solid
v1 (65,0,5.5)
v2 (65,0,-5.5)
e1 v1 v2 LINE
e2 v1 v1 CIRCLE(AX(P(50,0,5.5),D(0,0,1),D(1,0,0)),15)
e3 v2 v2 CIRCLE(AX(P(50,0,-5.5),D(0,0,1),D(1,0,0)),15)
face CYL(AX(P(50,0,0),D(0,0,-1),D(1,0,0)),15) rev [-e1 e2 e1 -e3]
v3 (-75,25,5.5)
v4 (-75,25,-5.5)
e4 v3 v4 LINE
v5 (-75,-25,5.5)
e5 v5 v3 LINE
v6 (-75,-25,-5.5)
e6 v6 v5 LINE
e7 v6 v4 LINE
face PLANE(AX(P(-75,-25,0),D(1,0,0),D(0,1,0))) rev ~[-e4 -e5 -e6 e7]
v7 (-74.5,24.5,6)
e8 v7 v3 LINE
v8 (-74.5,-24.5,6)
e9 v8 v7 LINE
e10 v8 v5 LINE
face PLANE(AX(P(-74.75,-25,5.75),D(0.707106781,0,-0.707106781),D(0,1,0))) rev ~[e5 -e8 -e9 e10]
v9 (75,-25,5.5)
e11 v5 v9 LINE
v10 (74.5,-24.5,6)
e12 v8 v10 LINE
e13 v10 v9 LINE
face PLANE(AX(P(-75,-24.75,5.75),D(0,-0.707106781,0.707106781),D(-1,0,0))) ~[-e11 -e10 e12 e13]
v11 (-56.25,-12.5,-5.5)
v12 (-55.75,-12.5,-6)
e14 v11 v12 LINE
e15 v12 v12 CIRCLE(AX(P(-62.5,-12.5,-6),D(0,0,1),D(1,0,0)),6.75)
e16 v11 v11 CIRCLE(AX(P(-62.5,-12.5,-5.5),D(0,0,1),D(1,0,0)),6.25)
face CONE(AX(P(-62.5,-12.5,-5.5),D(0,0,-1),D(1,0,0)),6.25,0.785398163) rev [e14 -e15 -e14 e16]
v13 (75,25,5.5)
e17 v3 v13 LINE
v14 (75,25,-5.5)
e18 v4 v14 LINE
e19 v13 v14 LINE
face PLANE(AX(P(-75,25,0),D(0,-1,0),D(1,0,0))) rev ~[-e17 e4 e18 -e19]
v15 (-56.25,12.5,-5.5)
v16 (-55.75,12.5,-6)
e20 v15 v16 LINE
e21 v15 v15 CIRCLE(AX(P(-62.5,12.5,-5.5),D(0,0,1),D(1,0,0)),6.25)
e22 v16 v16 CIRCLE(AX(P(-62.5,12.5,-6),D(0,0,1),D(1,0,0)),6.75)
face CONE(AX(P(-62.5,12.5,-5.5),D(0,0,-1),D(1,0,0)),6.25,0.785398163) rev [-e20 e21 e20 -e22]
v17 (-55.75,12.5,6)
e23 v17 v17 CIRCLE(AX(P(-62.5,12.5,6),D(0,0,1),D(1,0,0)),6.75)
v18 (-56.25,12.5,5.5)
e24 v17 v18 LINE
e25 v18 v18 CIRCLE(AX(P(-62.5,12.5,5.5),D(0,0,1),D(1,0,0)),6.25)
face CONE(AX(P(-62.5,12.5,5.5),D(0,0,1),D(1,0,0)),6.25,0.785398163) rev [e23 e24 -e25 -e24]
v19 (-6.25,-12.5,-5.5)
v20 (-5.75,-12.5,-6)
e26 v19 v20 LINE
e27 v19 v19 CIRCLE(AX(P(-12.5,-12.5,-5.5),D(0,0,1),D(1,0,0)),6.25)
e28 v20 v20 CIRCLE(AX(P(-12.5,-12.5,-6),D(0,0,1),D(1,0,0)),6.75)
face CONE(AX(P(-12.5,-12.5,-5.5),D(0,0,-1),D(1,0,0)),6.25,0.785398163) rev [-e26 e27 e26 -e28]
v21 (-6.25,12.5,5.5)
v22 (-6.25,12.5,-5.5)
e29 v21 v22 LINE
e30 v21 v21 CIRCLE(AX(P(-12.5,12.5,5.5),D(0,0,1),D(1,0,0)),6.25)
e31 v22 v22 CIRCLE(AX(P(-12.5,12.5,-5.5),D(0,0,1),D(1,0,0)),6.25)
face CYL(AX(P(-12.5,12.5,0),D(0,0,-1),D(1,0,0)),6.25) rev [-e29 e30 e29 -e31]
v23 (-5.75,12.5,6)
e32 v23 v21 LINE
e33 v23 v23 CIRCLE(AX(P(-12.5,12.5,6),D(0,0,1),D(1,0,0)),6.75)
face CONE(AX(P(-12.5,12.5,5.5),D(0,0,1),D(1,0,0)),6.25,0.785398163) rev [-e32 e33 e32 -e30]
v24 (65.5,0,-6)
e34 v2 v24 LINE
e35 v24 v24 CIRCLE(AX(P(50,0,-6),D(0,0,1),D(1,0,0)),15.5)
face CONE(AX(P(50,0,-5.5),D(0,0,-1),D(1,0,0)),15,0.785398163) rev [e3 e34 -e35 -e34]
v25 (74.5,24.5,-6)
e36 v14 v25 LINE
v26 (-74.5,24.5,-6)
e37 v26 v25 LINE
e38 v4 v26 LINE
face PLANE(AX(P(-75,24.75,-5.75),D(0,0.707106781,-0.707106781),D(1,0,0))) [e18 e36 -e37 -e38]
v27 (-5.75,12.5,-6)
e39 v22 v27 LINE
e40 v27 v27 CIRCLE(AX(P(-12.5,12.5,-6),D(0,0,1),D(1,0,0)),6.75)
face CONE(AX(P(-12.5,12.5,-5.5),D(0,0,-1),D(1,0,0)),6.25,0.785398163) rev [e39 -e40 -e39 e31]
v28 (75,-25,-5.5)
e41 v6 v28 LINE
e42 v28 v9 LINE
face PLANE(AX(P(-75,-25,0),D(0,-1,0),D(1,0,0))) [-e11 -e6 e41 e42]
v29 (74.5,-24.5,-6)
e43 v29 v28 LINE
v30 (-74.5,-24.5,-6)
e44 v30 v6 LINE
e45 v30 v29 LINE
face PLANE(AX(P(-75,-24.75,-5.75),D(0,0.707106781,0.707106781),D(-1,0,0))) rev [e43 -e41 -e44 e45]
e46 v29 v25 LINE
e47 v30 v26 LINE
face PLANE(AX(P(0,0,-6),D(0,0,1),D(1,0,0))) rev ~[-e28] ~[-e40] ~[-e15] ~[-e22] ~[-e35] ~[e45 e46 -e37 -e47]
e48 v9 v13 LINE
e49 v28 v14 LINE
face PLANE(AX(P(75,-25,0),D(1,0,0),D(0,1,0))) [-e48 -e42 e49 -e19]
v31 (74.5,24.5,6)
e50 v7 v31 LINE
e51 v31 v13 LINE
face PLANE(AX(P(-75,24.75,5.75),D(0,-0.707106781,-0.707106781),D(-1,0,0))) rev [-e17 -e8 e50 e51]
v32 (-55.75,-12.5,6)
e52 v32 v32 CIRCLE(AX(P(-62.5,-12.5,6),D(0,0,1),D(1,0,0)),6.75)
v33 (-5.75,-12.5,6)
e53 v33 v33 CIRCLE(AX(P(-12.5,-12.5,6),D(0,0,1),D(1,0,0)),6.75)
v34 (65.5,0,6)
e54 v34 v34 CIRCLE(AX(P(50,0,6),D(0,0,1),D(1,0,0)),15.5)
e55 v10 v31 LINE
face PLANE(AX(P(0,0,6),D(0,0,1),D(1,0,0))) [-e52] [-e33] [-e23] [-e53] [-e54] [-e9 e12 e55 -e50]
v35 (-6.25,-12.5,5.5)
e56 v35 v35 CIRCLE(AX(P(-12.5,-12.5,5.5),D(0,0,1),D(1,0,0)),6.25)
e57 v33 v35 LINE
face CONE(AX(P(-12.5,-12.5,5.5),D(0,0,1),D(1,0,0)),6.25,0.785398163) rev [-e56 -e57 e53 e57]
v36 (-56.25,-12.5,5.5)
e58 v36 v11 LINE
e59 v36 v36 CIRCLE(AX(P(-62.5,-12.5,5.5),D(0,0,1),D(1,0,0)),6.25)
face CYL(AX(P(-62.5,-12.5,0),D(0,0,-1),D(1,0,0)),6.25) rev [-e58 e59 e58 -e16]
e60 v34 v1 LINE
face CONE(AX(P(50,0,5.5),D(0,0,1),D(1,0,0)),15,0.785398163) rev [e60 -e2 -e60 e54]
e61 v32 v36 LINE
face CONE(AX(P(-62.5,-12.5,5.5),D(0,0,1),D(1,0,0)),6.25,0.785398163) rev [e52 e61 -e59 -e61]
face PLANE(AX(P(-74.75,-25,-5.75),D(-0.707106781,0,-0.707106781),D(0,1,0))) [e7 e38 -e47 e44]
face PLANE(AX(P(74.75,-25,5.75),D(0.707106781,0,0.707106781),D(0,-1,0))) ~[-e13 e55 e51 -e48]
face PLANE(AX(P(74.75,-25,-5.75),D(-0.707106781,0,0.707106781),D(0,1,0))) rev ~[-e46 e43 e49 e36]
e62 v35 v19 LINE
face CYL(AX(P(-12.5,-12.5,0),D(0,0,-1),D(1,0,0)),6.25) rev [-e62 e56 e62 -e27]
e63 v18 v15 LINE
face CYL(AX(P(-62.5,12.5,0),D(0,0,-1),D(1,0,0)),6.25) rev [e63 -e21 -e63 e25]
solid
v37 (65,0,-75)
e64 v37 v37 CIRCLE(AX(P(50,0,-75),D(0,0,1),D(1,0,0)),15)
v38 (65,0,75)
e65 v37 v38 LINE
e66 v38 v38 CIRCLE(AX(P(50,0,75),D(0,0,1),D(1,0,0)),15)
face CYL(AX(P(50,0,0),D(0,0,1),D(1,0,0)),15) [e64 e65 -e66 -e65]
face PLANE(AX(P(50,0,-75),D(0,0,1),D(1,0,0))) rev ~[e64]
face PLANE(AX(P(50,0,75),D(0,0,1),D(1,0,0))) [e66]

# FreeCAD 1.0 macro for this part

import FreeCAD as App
import Part
import Sketcher

V = App.Vector


def edges_at(feature, points):
    """Names of the edges that pass closest to the given points."""
    edges = feature.Shape.Edges
    near = lambda p: min(range(len(edges)), key=lambda i: edges[i].distToShape(Part.Vertex(*p))[0])
    return sorted({f"Edge{near(p) + 1}" for p in points})


def add_polygon(sketch, points):
    """Adds a closed chain of lines whose ends are joined by coincident constraints."""
    first, n = sketch.GeometryCount, len(points)
    for a, b in zip(points, points[1:] + points[:1]):
        sketch.addGeometry(Part.LineSegment(App.Vector(*a, 0), App.Vector(*b, 0)), False)
    for i in range(n):
        sketch.addConstraint(Sketcher.Constraint("Coincident", first + i, 2, first + (i + 1) % n, 1))

doc = App.newDocument("Part")
body = doc.addObject("PartDesign::Body", "Body")

# Sketch on XY plane
sketch1 = body.newObject("Sketcher::SketchObject", "Sketch")
sketch1.AttachmentSupport = (doc.getObject("XY_Plane"), [""])
sketch1.MapMode = "FlatFace"
add_polygon(sketch1, [(-75, 25), (-75, -25), (75, -25), (75, 25)])  # lines 0-3
sketch1.addGeometry(Part.Circle(V(-62, -12, 0), V(0, 0, 1), 6), False)  # 4
sketch1.addGeometry(Part.Circle(V(-12, -12, 0), V(0, 0, 1), 6), False)  # 5
sketch1.addGeometry(Part.Circle(V(-62, 12, 0), V(0, 0, 1), 6), False)  # 6
sketch1.addGeometry(Part.Circle(V(-12, 12, 0), V(0, 0, 1), 6), False)  # 7
sketch1.addGeometry(Part.Circle(V(50, 0, 0), V(0, 0, 1), 15), False)  # 8
sketch1.addConstraint([
    Sketcher.Constraint("Vertical", 0),
    Sketcher.Constraint("Horizontal", 1),
    Sketcher.Constraint("Vertical", 2),
    Sketcher.Constraint("Horizontal", 3),
    Sketcher.Constraint("Equal", 4, 5),
    Sketcher.Constraint("Equal", 5, 6),
    Sketcher.Constraint("Equal", 6, 7),
    Sketcher.Constraint("Symmetric", 0, 2, 2, 2, -1, 1),
    Sketcher.Constraint("Symmetric", 4, 3, 6, 3, -1),
    Sketcher.Constraint("Symmetric", 5, 3, 7, 3, -1),
    Sketcher.Constraint("PointOnObject", 8, 3, -1),
    Sketcher.Constraint("Horizontal", 4, 3, 5, 3),
    Sketcher.Constraint("Diameter", 8, 30.0),
    Sketcher.Constraint("Diameter", 4, 12.5),
    Sketcher.Constraint("DistanceX", 1, 1, 1, 2, 150.0),
    Sketcher.Constraint("DistanceY", 0, 2, 0, 1, 50.0),
    Sketcher.Constraint("DistanceX", -1, 1, 8, 3, 50.0),
    Sketcher.Constraint("DistanceX", 4, 3, 5, 3, 50.0),
    Sketcher.Constraint("DistanceY", 4, 3, 6, 3, 25.0),
    Sketcher.Constraint("DistanceX", 4, 3, -1, 1, 62.5),
])
pad1 = body.newObject("PartDesign::Pad", "Pad")
pad1.Profile = sketch1
pad1.Length = 12
pad1.Midplane = True
doc.recompute()

chamfer = body.newObject("PartDesign::Chamfer", "Chamfer")
chamfer.Base = (pad1, edges_at(pad1, [
    (0, -25, 6),
    (75, 0, 6),
    (0, 25, 6),
    (-75, 0, 6),
    (-68.75, -12.5, 6),
    (-18.75, -12.5, 6),
    (-68.75, 12.5, 6),
    (-18.75, 12.5, 6),
    (35, 0, 6),
    (0, -25, -6),
    (75, 0, -6),
    (0, 25, -6),
    (-75, 0, -6),
    (-68.75, -12.5, -6),
    (-18.75, -12.5, -6),
    (-68.75, 12.5, -6),
    (-18.75, 12.5, -6),
    (35, 0, -6),
]))
chamfer.Size = 0.5
body2 = doc.addObject("PartDesign::Body", "Body001")

# Sketch on XY plane
sketch2 = body2.newObject("Sketcher::SketchObject", "Sketch001")
sketch2.AttachmentSupport = (doc.getObject("XY_Plane001"), [""])
sketch2.MapMode = "FlatFace"
sketch2.addGeometry(Part.Circle(V(50, 0, 0), V(0, 0, 1), 15), False)
sketch2.addConstraint([
    Sketcher.Constraint("PointOnObject", 0, 3, -1),
    Sketcher.Constraint("Diameter", 0, 30.0),
    Sketcher.Constraint("DistanceX", -1, 1, 0, 3, 50.0),
])
pad2 = body2.newObject("PartDesign::Pad", "Pad001")
pad2.Profile = sketch2
pad2.Length = 150
pad2.Midplane = True

doc.recompute()
